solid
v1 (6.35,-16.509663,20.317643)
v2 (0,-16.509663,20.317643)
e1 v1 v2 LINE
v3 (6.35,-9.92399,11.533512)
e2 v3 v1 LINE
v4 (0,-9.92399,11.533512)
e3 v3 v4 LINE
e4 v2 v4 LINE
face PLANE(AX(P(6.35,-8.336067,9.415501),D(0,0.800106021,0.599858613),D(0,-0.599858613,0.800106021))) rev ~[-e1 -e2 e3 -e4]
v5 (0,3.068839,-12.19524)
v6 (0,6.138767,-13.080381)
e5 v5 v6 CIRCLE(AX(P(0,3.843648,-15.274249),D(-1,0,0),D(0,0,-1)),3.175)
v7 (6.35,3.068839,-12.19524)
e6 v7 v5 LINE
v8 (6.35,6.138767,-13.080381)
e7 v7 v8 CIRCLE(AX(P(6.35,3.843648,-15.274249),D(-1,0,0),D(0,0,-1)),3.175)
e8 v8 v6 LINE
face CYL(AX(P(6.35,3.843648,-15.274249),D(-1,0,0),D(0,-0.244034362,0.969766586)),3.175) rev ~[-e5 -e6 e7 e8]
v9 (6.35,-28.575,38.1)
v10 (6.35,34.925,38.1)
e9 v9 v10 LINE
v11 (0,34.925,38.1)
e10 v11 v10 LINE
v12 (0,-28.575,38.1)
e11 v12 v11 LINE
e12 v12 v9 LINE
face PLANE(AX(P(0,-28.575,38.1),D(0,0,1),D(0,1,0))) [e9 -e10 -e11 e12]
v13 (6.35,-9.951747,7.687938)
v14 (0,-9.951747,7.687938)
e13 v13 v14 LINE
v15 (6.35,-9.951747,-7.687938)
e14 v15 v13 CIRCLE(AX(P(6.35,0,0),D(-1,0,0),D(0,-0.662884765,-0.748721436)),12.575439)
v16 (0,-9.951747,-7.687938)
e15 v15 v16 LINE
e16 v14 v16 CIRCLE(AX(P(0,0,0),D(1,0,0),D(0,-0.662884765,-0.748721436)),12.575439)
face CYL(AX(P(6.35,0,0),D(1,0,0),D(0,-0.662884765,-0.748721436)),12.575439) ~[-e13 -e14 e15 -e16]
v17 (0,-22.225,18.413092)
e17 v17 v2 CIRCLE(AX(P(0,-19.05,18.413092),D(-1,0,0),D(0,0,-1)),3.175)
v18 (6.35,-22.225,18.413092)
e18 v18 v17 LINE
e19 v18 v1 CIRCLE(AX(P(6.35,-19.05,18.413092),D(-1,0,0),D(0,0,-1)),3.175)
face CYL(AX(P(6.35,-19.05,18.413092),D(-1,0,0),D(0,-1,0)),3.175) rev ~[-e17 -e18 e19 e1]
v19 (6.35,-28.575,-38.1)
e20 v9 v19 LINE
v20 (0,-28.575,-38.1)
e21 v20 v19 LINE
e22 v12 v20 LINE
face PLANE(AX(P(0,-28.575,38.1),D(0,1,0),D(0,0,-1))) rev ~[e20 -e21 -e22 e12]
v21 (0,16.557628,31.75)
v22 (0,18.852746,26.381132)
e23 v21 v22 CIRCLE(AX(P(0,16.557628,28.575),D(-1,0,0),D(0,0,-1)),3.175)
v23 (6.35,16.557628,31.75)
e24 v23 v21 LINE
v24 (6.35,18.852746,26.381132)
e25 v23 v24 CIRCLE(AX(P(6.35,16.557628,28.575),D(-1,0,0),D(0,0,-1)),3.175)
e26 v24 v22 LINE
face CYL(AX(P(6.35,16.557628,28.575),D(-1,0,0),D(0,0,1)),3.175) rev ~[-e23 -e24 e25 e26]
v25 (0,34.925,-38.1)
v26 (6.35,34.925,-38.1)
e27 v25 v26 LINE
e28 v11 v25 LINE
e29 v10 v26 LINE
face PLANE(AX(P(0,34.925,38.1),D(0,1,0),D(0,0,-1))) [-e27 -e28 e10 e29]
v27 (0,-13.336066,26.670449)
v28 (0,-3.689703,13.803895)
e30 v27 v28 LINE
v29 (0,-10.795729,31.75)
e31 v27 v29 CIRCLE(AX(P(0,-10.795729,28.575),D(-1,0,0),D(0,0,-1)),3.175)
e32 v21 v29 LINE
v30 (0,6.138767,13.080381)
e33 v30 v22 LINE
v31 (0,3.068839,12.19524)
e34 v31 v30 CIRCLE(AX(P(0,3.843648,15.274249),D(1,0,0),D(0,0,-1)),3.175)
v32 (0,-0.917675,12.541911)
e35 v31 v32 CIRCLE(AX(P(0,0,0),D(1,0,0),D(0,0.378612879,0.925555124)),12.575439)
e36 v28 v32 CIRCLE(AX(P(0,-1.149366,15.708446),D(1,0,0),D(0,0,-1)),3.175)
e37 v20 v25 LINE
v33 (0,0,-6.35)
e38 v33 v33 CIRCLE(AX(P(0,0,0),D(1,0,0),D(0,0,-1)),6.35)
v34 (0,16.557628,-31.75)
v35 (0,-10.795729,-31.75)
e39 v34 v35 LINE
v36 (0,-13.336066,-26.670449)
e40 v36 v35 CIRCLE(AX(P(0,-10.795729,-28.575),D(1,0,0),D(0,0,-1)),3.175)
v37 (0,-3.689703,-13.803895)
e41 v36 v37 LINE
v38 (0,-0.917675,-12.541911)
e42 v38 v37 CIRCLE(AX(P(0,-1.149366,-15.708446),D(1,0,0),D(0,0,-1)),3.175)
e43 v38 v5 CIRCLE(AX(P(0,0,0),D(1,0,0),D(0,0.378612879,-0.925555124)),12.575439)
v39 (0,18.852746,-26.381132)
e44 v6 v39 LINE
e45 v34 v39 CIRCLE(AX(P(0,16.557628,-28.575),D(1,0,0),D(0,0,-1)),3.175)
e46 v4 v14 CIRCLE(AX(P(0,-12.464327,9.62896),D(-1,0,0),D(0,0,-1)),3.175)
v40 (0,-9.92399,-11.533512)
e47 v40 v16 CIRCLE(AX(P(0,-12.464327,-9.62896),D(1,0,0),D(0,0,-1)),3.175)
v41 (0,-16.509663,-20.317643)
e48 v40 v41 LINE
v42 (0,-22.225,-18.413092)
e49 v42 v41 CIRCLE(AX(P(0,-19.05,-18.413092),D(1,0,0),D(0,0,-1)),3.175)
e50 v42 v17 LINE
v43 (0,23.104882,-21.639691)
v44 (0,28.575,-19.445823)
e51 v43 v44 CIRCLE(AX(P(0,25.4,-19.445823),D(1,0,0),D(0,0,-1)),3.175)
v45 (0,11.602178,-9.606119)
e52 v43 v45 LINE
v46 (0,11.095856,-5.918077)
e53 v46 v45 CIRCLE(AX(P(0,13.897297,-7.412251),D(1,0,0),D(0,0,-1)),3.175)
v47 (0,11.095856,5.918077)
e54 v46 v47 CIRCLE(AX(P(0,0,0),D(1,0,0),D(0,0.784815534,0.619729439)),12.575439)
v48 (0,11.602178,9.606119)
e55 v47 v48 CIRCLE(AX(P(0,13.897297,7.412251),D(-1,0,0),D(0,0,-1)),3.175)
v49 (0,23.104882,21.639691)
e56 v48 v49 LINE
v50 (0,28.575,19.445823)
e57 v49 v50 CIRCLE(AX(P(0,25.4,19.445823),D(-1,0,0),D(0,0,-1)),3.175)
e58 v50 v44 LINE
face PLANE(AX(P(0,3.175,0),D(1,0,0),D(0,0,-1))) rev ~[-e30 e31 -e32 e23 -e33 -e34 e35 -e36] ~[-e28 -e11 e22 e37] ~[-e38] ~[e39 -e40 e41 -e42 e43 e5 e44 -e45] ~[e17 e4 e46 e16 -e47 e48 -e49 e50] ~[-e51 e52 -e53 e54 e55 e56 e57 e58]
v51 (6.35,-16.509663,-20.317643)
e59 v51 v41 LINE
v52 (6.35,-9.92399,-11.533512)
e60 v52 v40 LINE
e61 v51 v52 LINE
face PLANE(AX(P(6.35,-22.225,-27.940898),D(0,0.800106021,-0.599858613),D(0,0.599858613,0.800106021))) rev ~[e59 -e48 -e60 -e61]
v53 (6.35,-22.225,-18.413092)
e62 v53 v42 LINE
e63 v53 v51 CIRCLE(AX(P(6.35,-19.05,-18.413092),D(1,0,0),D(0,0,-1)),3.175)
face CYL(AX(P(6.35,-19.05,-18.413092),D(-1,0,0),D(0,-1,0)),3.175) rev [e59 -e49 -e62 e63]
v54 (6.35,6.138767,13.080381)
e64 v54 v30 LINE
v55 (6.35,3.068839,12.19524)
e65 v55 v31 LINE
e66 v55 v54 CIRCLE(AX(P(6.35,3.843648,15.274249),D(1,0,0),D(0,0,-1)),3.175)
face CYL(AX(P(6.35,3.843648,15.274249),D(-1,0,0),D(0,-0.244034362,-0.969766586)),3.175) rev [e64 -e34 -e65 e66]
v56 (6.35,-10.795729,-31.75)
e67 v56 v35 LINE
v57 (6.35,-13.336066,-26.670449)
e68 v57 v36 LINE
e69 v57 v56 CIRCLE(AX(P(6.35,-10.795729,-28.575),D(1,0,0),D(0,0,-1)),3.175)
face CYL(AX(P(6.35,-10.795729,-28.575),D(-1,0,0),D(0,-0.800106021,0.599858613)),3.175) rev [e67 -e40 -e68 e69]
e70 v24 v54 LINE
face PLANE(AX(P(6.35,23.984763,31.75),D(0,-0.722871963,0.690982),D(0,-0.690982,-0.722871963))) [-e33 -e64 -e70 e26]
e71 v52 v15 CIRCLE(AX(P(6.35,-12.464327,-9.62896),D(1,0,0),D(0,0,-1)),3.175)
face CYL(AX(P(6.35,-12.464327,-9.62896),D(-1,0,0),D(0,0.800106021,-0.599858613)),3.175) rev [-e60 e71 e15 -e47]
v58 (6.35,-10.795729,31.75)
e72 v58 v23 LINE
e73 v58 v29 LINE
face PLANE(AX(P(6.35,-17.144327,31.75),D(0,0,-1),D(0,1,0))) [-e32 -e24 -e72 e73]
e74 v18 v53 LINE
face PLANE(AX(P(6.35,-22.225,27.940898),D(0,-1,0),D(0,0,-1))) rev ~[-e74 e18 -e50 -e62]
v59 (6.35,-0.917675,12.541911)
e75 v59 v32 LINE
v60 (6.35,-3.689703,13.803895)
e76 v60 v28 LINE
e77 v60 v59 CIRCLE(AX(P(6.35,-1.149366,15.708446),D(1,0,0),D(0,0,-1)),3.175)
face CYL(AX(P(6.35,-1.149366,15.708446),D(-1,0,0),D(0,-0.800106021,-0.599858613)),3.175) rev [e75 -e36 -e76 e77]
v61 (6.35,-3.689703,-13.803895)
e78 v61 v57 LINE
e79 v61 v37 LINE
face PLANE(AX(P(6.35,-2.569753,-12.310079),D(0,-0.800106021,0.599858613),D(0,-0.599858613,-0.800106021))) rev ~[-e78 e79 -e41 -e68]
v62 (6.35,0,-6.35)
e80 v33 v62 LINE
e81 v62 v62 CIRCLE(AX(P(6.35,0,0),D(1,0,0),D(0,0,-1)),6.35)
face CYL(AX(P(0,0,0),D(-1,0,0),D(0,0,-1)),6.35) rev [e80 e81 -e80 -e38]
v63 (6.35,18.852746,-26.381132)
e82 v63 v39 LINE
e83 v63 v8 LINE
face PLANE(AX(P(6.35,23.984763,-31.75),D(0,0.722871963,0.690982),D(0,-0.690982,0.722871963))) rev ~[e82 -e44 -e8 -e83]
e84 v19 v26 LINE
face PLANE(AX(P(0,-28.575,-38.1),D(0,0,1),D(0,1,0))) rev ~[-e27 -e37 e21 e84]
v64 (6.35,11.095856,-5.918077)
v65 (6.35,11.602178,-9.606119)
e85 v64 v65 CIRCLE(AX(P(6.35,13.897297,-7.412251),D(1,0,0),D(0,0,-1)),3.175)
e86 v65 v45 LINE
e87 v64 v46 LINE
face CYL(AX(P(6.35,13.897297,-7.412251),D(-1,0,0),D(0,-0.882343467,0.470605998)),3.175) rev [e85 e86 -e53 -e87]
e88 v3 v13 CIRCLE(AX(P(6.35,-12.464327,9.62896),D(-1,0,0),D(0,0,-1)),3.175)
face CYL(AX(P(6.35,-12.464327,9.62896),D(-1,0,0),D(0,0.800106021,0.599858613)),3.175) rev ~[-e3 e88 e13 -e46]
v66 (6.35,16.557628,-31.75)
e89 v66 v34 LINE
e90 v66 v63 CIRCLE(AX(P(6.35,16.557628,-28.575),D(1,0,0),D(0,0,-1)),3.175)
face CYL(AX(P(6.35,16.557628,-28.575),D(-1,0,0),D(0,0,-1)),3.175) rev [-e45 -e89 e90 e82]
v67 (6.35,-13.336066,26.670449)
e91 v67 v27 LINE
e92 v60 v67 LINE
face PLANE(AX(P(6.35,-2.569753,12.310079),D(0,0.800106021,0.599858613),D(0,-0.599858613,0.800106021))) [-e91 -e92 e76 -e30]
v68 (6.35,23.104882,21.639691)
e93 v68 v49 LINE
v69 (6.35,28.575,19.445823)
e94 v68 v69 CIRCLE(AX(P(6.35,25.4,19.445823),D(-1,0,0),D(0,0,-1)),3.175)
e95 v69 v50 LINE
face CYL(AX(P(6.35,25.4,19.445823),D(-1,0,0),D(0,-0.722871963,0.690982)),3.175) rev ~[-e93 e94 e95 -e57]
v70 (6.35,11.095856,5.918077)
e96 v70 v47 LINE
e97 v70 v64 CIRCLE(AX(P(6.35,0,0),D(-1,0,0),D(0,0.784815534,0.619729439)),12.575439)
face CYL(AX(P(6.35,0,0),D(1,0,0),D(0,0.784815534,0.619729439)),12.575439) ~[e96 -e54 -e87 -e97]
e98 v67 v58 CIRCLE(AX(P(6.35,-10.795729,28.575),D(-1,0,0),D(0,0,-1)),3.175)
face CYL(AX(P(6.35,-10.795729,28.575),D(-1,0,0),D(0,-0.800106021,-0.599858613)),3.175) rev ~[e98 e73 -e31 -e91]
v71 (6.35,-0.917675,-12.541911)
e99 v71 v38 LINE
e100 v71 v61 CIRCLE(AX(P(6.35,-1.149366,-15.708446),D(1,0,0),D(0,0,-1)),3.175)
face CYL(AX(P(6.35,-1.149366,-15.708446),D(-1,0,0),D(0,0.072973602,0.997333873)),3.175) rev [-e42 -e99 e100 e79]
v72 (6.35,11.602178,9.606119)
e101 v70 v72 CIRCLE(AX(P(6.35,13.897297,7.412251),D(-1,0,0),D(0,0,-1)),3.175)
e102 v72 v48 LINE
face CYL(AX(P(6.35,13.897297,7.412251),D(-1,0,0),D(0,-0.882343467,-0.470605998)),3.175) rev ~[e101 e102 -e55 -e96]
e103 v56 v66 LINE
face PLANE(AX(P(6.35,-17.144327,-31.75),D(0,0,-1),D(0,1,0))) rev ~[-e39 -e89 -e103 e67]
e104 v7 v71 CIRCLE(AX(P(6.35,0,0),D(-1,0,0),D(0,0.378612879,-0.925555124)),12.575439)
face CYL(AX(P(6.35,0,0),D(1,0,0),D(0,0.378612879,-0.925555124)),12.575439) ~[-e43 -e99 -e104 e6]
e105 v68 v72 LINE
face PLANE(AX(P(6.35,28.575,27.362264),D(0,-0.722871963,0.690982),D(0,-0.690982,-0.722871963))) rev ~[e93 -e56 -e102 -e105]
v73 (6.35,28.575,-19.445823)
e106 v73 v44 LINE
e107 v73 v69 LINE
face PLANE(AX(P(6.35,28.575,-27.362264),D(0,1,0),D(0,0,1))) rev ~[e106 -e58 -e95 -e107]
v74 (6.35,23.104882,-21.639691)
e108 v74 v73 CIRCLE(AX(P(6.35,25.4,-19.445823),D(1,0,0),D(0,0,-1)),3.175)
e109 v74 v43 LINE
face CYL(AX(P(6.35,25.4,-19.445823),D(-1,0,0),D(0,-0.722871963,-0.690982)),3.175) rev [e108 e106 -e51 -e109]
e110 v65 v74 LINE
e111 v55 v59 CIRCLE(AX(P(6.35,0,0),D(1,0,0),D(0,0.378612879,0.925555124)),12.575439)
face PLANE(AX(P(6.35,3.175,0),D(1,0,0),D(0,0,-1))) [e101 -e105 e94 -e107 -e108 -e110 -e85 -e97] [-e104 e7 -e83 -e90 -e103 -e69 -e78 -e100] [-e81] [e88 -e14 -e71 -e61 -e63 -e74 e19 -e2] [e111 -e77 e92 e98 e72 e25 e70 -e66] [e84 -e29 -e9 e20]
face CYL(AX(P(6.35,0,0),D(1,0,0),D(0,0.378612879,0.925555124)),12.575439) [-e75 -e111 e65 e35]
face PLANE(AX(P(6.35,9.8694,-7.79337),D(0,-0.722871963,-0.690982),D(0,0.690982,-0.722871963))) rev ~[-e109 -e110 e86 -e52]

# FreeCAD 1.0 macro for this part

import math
import FreeCAD as App
import Part
import Sketcher
from FreeCAD import Vector
Q = App.Units.Quantity


def edges_at(feature, points):
    """Names of the edges that pass closest to the given points."""
    edges = feature.Shape.Edges
    near = lambda p: min(range(len(edges)), key=lambda i: edges[i].distToShape(Part.Vertex(*p))[0])
    return sorted({f"Edge{near(p) + 1}" for p in points})

doc = App.newDocument("Part")
params = doc.addObject("Spreadsheet::Sheet", "Params")
for row, (alias, value) in enumerate([
    ("sketch1_diameter", "0.5 in"),
    ("sketch1_height", "3 in"),
    ("sketch1_width", "2.5 in"),
    ("pad1_length", "0.25 in"),
    ("fillet_radius", "0.125 in"),
], start=1):
    params.set(f"A{row}", alias)
    params.set(f"B{row}", "=" + value)
    params.setAlias(f"B{row}", alias)

body = doc.addObject("PartDesign::Body", "Body")

sketch1 = body.newObject("Sketcher::SketchObject", "Sketch")
sketch1.AttachmentSupport = (doc.getObject("YZ_Plane"), [""])
sketch1.MapMode = "FlatFace"
sketch1.addGeometry([
    Part.LineSegment(Vector(35, 38, 0), Vector(-29, 38, 0)),
    Part.LineSegment(Vector(-29, 38, 0), Vector(-29, -38, 0)),
    Part.LineSegment(Vector(-29, -38, 0), Vector(35, -38, 0)),
    Part.LineSegment(Vector(35, -38, 0), Vector(35, 38, 0)),
    Part.Circle(Vector(0, 0, 0), Vector(0, 0, 1), 6),
], False)
sketch1.addConstraint([
    Sketcher.Constraint("Coincident", 0, 2, 1, 1),
    Sketcher.Constraint("Coincident", 1, 2, 2, 1),
    Sketcher.Constraint("Coincident", 2, 2, 3, 1),
    Sketcher.Constraint("Coincident", 3, 2, 0, 1),
    Sketcher.Constraint("Horizontal", 0),
    Sketcher.Constraint("Vertical", 1),
    Sketcher.Constraint("Horizontal", 2),
    Sketcher.Constraint("Vertical", 3),
    Sketcher.Constraint("Coincident", 4, 3, -1, 1),
    Sketcher.Constraint("Diameter", 4, Q("0.5 in")),
    Sketcher.Constraint("DistanceY", 1, 2, 1, 1, Q("3 in")),
    Sketcher.Constraint("DistanceX", 0, 2, 0, 1, Q("2.5 in")),
    Sketcher.Constraint("DistanceY", -1, 1, 0, 2, Q("1.5 in")),
    Sketcher.Constraint("DistanceX", 0, 2, -1, 1, Q("1.125 in")),
])
sketch1.setExpression("Constraints[9]", "Params.sketch1_diameter")
sketch1.setExpression("Constraints[10]", "Params.sketch1_height")
sketch1.setExpression("Constraints[11]", "Params.sketch1_width")
pad1 = body.newObject("PartDesign::Pad", "Pad")
pad1.Profile = sketch1
pad1.setExpression("Length", "Params.pad1_length")

sketch2 = body.newObject("Sketcher::SketchObject", "Sketch001")
sketch2.AttachmentSupport = (doc.getObject("YZ_Plane"), [""])
sketch2.MapMode = "FlatFace"
sketch2.AttachmentOffset = App.Placement(Vector(0, 0, 0.25 * 25.4), App.Rotation())
sketch2.addGeometry([
    Part.LineSegment(Vector(-8, 9, 0), Vector(-22, 28, 0)),
    Part.LineSegment(Vector(-22, 28, 0), Vector(-22, -28, 0)),
    Part.LineSegment(Vector(-22, -28, 0), Vector(-8, -9, 0)),
    Part.ArcOfCircle(Part.Circle(Vector(0, 0, 0), Vector(0, 0, 1), 13), math.radians(132), math.radians(228)),
], False)
sketch2.addConstraint([
    Sketcher.Constraint("Coincident", 0, 2, 1, 1),
    Sketcher.Constraint("Coincident", 1, 2, 2, 1),
    Sketcher.Constraint("Coincident", 2, 2, 3, 2),
    Sketcher.Constraint("Coincident", 3, 1, 0, 1),
    Sketcher.Constraint("Vertical", 1),
    Sketcher.Constraint("Coincident", 3, 3, -1, 1),
    Sketcher.Constraint("Vertical", 2, 2, 3, 1),
    Sketcher.Constraint("Equal", 0, 2),
    Sketcher.Constraint("DistanceX", 0, 2, -1, 1, Q("0.875 in")),
    Sketcher.Constraint("Radius", 3, 12.575439),
    Sketcher.Constraint("DistanceY", 2, 2, -1, 1, 9.415501),
    Sketcher.Constraint("DistanceY", 2, 2, 0, 2, 37.356398),
])
pocket1 = body.newObject("PartDesign::Pocket", "Pocket")
pocket1.Profile = sketch2
pocket1.Type = "UpToFirst"

sketch3 = body.newObject("Sketcher::SketchObject", "Sketch002")
sketch3.AttachmentSupport = (doc.getObject("YZ_Plane"), [""])
sketch3.MapMode = "FlatFace"
sketch3.AttachmentOffset = App.Placement(Vector(0, 0, 0.25 * 25.4), App.Rotation())
sketch3.addGeometry([
    Part.LineSegment(Vector(-17, 32, 0), Vector(-3, 12, 0)),
    Part.ArcOfCircle(Part.Circle(Vector(0, 0, 0), Vector(0, 0, 1), 13), math.radians(68), math.radians(102)),
    Part.LineSegment(Vector(5, 12, 0), Vector(24, 32, 0)),
    Part.LineSegment(Vector(24, 32, 0), Vector(-17, 32, 0)),
], False)
sketch3.addConstraint([
    Sketcher.Constraint("Coincident", 0, 2, 1, 2),
    Sketcher.Constraint("Coincident", 1, 1, 2, 1),
    Sketcher.Constraint("Coincident", 2, 2, 3, 1),
    Sketcher.Constraint("Coincident", 3, 2, 0, 1),
    Sketcher.Constraint("Horizontal", 3),
    Sketcher.Constraint("Coincident", 1, 3, -1, 1),
    Sketcher.Constraint("DistanceY", -1, 1, 2, 2, Q("1.25 in")),
    Sketcher.Constraint("Radius", 1, 12.575439),
    Sketcher.Constraint("DistanceX", 3, 2, 3, 1, 41.12909),
    Sketcher.Constraint("Distance", 0, 24.296682),
    Sketcher.Constraint("Distance", 2, 27.820609),
    Sketcher.Constraint("DistanceY", -1, 1, 0, 2, 12.310079),
])
pocket2 = body.newObject("PartDesign::Pocket", "Pocket001")
pocket2.Profile = sketch3
pocket2.Type = "UpToFirst"

sketch4 = body.newObject("Sketcher::SketchObject", "Sketch003")
sketch4.AttachmentSupport = (doc.getObject("YZ_Plane"), [""])
sketch4.MapMode = "FlatFace"
sketch4.AttachmentOffset = App.Placement(Vector(0, 0, 0.25 * 25.4), App.Rotation())
sketch4.addGeometry([
    Part.LineSegment(Vector(29, 27, 0), Vector(10, 8, 0)),
    Part.ArcOfCircle(Part.Circle(Vector(0, 0, 0), Vector(0, 0, 1), 13), math.radians(-38), math.radians(38)),
    Part.LineSegment(Vector(10, -8, 0), Vector(29, -27, 0)),
    Part.LineSegment(Vector(29, -27, 0), Vector(29, 27, 0)),
], False)
sketch4.addConstraint([
    Sketcher.Constraint("Coincident", 0, 2, 1, 2),
    Sketcher.Constraint("Coincident", 1, 1, 2, 1),
    Sketcher.Constraint("Coincident", 2, 2, 3, 1),
    Sketcher.Constraint("Coincident", 3, 2, 0, 1),
    Sketcher.Constraint("Vertical", 3),
    Sketcher.Constraint("Coincident", 1, 3, -1, 1),
    Sketcher.Constraint("Vertical", 0, 2, 1, 1),
    Sketcher.Constraint("Equal", 0, 2),
    Sketcher.Constraint("DistanceX", -1, 1, 2, 2, Q("1.125 in")),
    Sketcher.Constraint("Radius", 1, 12.575439),
    Sketcher.Constraint("DistanceY", 3, 1, 3, 2, 54.724529),
    Sketcher.Constraint("DistanceX", -1, 1, 0, 2, 9.8694),
])
pocket3 = body.newObject("PartDesign::Pocket", "Pocket002")
pocket3.Profile = sketch4
pocket3.Type = "UpToFirst"

sketch5 = body.newObject("Sketcher::SketchObject", "Sketch004")
sketch5.AttachmentSupport = (doc.getObject("YZ_Plane"), [""])
sketch5.MapMode = "FlatFace"
sketch5.AttachmentOffset = App.Placement(Vector(0, 0, 0.25 * 25.4), App.Rotation())
sketch5.addGeometry([
    Part.LineSegment(Vector(24, -32, 0), Vector(5, -12, 0)),
    Part.ArcOfCircle(Part.Circle(Vector(0, 0, 0), Vector(0, 0, 1), 13), math.radians(-102), math.radians(-68)),
    Part.LineSegment(Vector(-3, -12, 0), Vector(-17, -32, 0)),
    Part.LineSegment(Vector(-17, -32, 0), Vector(24, -32, 0)),
], False)
sketch5.addConstraint([
    Sketcher.Constraint("Coincident", 0, 2, 1, 2),
    Sketcher.Constraint("Coincident", 1, 1, 2, 1),
    Sketcher.Constraint("Coincident", 2, 2, 3, 1),
    Sketcher.Constraint("Coincident", 3, 2, 0, 1),
    Sketcher.Constraint("Horizontal", 3),
    Sketcher.Constraint("Coincident", 1, 3, -1, 1),
    Sketcher.Constraint("DistanceY", 2, 2, -1, 1, Q("1.25 in")),
    Sketcher.Constraint("Radius", 1, 12.575439),
    Sketcher.Constraint("DistanceX", 3, 1, 3, 2, 41.12909),
    Sketcher.Constraint("Distance", 0, 27.820609),
    Sketcher.Constraint("Distance", 2, 24.296682),
    Sketcher.Constraint("DistanceY", 0, 2, -1, 1, 11.639262),
])
pocket4 = body.newObject("PartDesign::Pocket", "Pocket003")
pocket4.Profile = sketch5
pocket4.Type = "UpToFirst"
doc.recompute()

fillet = body.newObject("PartDesign::Fillet", "Fillet")
fillet.Base = (pocket4, edges_at(pocket4, [
    (3.175, 4.761, 11.639),
    (3.175, -2.57, 12.31),
    (3.175, -17.144, 31.75),
    (3.175, 23.985, 31.75),
    (3.175, -8.336, 9.416),
    (3.175, -8.336, -9.416),
    (3.175, -22.225, -27.941),
    (3.175, -22.225, 27.941),
    (3.175, 28.575, 27.362),
    (3.175, 28.575, -27.362),
    (3.175, 9.869, -7.793),
    (3.175, 9.869, 7.793),
    (3.175, 23.985, -31.75),
    (3.175, -17.144, -31.75),
    (3.175, -2.57, -12.31),
    (3.175, 4.761, -11.639),
]))
fillet.setExpression("Radius", "Params.fillet_radius")

doc.recompute()
